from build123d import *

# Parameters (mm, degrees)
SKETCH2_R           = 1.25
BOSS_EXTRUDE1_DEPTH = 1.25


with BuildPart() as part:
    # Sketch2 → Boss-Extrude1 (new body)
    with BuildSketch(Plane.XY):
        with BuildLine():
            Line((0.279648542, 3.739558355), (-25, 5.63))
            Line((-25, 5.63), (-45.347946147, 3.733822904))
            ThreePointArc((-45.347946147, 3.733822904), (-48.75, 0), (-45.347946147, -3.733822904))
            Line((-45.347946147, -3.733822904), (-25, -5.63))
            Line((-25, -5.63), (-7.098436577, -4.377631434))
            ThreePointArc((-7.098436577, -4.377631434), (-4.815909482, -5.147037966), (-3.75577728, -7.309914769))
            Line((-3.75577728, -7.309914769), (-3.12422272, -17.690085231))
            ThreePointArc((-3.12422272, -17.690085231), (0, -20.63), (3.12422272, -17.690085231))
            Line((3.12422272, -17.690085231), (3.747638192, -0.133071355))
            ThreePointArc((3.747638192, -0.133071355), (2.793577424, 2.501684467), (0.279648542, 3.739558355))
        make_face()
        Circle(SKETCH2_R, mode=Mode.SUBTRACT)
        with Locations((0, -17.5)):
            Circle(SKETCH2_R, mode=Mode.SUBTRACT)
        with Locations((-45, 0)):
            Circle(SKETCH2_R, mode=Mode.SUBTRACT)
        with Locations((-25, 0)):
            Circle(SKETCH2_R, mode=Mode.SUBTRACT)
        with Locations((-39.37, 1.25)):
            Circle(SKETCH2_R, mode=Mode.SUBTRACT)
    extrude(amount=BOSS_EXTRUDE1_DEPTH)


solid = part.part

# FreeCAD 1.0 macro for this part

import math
import FreeCAD as App
import Part
import Sketcher
from FreeCAD import Vector
Q = App.Units.Quantity

doc = App.newDocument("Part")
body = doc.addObject("PartDesign::Body", "Body")

# Sketch on XY plane
sketch1 = body.newObject("Sketcher::SketchObject", "Sketch")
sketch1.AttachmentSupport = (doc.getObject("XY_Plane"), [""])
sketch1.MapMode = "FlatFace"
sketch1.addGeometry(Part.LineSegment(Vector(0.3, 3.7, 0), Vector(-25, 5.6, 0)), False)
sketch1.addGeometry(Part.LineSegment(Vector(-25, 5.6, 0), Vector(-45.3, 3.7, 0)), False)
sketch1.addGeometry(Part.ArcOfCircle(Part.Circle(Vector(-45, 0, 0), Vector(0, 0, 1), 3.8), math.radians(95), math.radians(265)), False)
sketch1.addGeometry(Part.LineSegment(Vector(-45.3, -3.7, 0), Vector(-25, -5.6, 0)), False)
sketch1.addGeometry(Part.LineSegment(Vector(-25, -5.6, 0), Vector(-7.1, -4.4, 0)), False)
sketch1.addGeometry(Part.ArcOfCircle(Part.Circle(Vector(-6.9, -7.5, 0), Vector(0, 0, 1), 3.1), math.radians(3), math.radians(94)), False)
sketch1.addGeometry(Part.LineSegment(Vector(-3.8, -7.3, 0), Vector(-3.1, -17.7, 0)), False)
sketch1.addGeometry(Part.ArcOfCircle(Part.Circle(Vector(0, -17.5, 0), Vector(0, 0, 1), 3.1), math.radians(-177), math.radians(-3)), False)
sketch1.addGeometry(Part.LineSegment(Vector(3.1, -17.7, 0), Vector(3.7, -0.1, 0)), False)
sketch1.addGeometry(Part.ArcOfCircle(Part.Circle(Vector(0, 0, 0), Vector(0, 0, 1), 3.8), math.radians(-2), math.radians(86)), False)
sketch1.addGeometry(Part.Circle(Vector(0, -17.5, 0), Vector(0, 0, 1), 1.2), False)
sketch1.addGeometry(Part.Circle(Vector(-45, 0, 0), Vector(0, 0, 1), 1.2), False)
sketch1.addGeometry(Part.Circle(Vector(-39.4, 1.2, 0), Vector(0, 0, 1), 1.2), False)
sketch1.addGeometry(Part.Circle(Vector(-25, 0, 0), Vector(0, 0, 1), 1.2), False)
sketch1.addGeometry(Part.Circle(Vector(0, 0, 0), Vector(0, 0, 1), 1.2), False)
sketch1.addConstraint(Sketcher.Constraint("Coincident", 0, 2, 1, 1))
sketch1.addConstraint(Sketcher.Constraint("Tangent", 1, 2, 2, 1))
sketch1.addConstraint(Sketcher.Constraint("Tangent", 2, 2, 3, 1))
sketch1.addConstraint(Sketcher.Constraint("Coincident", 3, 2, 4, 1))
sketch1.addConstraint(Sketcher.Constraint("Tangent", 4, 2, 5, 2))
sketch1.addConstraint(Sketcher.Constraint("Tangent", 5, 1, 6, 1))
sketch1.addConstraint(Sketcher.Constraint("Tangent", 6, 2, 7, 1))
sketch1.addConstraint(Sketcher.Constraint("Coincident", 7, 2, 8, 1))
sketch1.addConstraint(Sketcher.Constraint("Tangent", 8, 2, 9, 1))
sketch1.addConstraint(Sketcher.Constraint("Tangent", 9, 2, 0, 1))
sketch1.addConstraint(Sketcher.Constraint("Coincident", 9, 3, -1, 1))
sketch1.addConstraint(Sketcher.Constraint("Coincident", 14, 3, -1, 1))
sketch1.addConstraint(Sketcher.Constraint("Coincident", 10, 3, 7, 3))
sketch1.addConstraint(Sketcher.Constraint("Coincident", 11, 3, 2, 3))
sketch1.addConstraint(Sketcher.Constraint("Equal", 5, 7))
sketch1.addConstraint(Sketcher.Constraint("Equal", 2, 9))
sketch1.addConstraint(Sketcher.Constraint("Equal", 10, 11))
sketch1.addConstraint(Sketcher.Constraint("Equal", 11, 12))
sketch1.addConstraint(Sketcher.Constraint("Equal", 12, 13))
sketch1.addConstraint(Sketcher.Constraint("Equal", 13, 14))
sketch1.addConstraint(Sketcher.Constraint("Symmetric", 6, 2, 7, 2, -2))
sketch1.addConstraint(Sketcher.Constraint("Symmetric", 1, 2, 2, 2, -1))
sketch1.addConstraint(Sketcher.Constraint("PointOnObject", 13, 3, -1))
sketch1.addConstraint(Sketcher.Constraint("Vertical", 13, 3, 0, 2))
sketch1.addConstraint(Sketcher.Constraint("Vertical", 0, 2, 3, 2))
sketch1.addConstraint(Sketcher.Constraint("Diameter", 10, Q("2.5 mm")))
sketch1.addConstraint(Sketcher.Constraint("Radius", 2, Q("3.75 mm")))
sketch1.addConstraint(Sketcher.Constraint("Radius", 5, Q("3.13 mm")))
sketch1.addConstraint(Sketcher.Constraint("DistanceX", 2, 3, -1, 1, Q("45 mm")))
sketch1.addConstraint(Sketcher.Constraint("DistanceX", 13, 3, -1, 1, Q("25 mm")))
sketch1.addConstraint(Sketcher.Constraint("DistanceY", 7, 3, 5, 3, Q("10 mm")))
sketch1.addConstraint(Sketcher.Constraint("DistanceY", 5, 3, -1, 1, Q("7.5 mm")))
sketch1.addConstraint(Sketcher.Constraint("DistanceX", 5, 3, -1, 1, Q("6.88 mm")))
sketch1.addConstraint(Sketcher.Constraint("DistanceX", 12, 3, -1, 1, Q("39.37 mm")))
sketch1.addConstraint(Sketcher.Constraint("DistanceY", -1, 1, 12, 3, Q("1.25 mm")))
sketch1.addConstraint(Sketcher.Constraint("DistanceY", -1, 1, 0, 2, Q("5.63 mm")))
pad1 = body.newObject("PartDesign::Pad", "Pad")
pad1.Profile = sketch1
pad1.Length = 1.25

doc.recompute()
